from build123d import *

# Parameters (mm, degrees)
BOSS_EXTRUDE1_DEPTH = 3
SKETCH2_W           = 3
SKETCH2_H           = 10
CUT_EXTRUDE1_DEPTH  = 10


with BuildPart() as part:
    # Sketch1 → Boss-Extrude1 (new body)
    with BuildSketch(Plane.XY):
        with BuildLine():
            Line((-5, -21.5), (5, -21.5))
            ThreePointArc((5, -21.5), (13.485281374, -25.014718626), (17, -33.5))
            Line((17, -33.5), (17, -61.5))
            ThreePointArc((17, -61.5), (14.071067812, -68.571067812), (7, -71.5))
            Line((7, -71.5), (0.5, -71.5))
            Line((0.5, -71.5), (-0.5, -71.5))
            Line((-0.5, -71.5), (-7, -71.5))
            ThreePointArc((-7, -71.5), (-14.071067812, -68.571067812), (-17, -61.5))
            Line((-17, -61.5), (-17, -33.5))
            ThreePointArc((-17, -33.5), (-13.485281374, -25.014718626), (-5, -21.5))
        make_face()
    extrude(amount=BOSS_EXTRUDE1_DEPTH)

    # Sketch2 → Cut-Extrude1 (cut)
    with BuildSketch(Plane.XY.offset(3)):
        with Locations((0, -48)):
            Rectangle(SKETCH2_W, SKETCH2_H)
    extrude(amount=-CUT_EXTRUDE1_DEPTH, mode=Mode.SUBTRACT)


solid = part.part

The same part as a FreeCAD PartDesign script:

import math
import FreeCAD as App
import Part
import Sketcher
Q = App.Units.Quantity

doc = App.newDocument("Part")
params = doc.addObject("Spreadsheet::Sheet", "Params")
for row, (alias, value) in enumerate([
    ("sketch1_radius", "12 mm"),
    ("sketch1_radius2", "10 mm"),
    ("sketch1_width", "10 mm"),
    ("sketch1_height", "28 mm"),
    ("pad1_length", "3 mm"),
    ("sketch2_width", "3 mm"),
    ("sketch2_height", "10 mm"),
    ("pocket1_length", "10 mm"),
], start=1):
    params.set(f"A{row}", alias)
    params.set(f"B{row}", "=" + value)
    params.setAlias(f"B{row}", alias)

body = doc.addObject("PartDesign::Body", "Body")

sketch1 = body.newObject("Sketcher::SketchObject", "Sketch")
sketch1.AttachmentSupport = (doc.getObject("XY_Plane"), [""])
sketch1.MapMode = "FlatFace"
sketch1.addGeometry([
    Part.LineSegment(App.Vector(5, -22, 0), App.Vector(-5, -22, 0)),
    Part.ArcOfCircle(Part.Circle(App.Vector(-5, -34, 0), App.Vector(0, 0, 1), 12), math.radians(90), math.radians(180)),
    Part.LineSegment(App.Vector(-17, -34, 0), App.Vector(-17, -62, 0)),
    Part.ArcOfCircle(Part.Circle(App.Vector(-7, -62, 0), App.Vector(0, 0, 1), 10), math.radians(180), math.radians(270)),
    Part.LineSegment(App.Vector(-7, -72, 0), App.Vector(7, -72, 0)),
    Part.ArcOfCircle(Part.Circle(App.Vector(7, -62, 0), App.Vector(0, 0, 1), 10), math.radians(-90), math.radians(0)),
    Part.LineSegment(App.Vector(17, -62, 0), App.Vector(17, -34, 0)),
    Part.ArcOfCircle(Part.Circle(App.Vector(5, -34, 0), App.Vector(0, 0, 1), 12), math.radians(0), math.radians(90)),
], False)
sketch1.addConstraint([
    Sketcher.Constraint("Tangent", 0, 2, 1, 1),
    Sketcher.Constraint("Tangent", 1, 2, 2, 1),
    Sketcher.Constraint("Tangent", 2, 2, 3, 1),
    Sketcher.Constraint("Tangent", 3, 2, 4, 1),
    Sketcher.Constraint("Tangent", 4, 2, 5, 1),
    Sketcher.Constraint("Tangent", 5, 2, 6, 1),
    Sketcher.Constraint("Tangent", 6, 2, 7, 1),
    Sketcher.Constraint("Tangent", 7, 2, 0, 1),
    Sketcher.Constraint("Horizontal", 0),
    Sketcher.Constraint("Vertical", 2),
    Sketcher.Constraint("Horizontal", 4),
    Sketcher.Constraint("Vertical", 6),
    Sketcher.Constraint("Equal", 3, 5),
    Sketcher.Constraint("Equal", 1, 7),
    Sketcher.Constraint("Radius", 1, Q("12 mm")),
    Sketcher.Constraint("Radius", 3, Q("10 mm")),
    Sketcher.Constraint("DistanceX", 0, 2, 0, 1, Q("10 mm")),
    Sketcher.Constraint("DistanceY", 2, 2, 2, 1, Q("28 mm")),
    Sketcher.Constraint("DistanceX", 1, 3, -1, 1, Q("5 mm")),
    Sketcher.Constraint("DistanceY", 1, 3, -1, 1, Q("33.5 mm")),
])
sketch1.setExpression("Constraints[14]", "Params.sketch1_radius")
sketch1.setExpression("Constraints[15]", "Params.sketch1_radius2")
sketch1.setExpression("Constraints[16]", "Params.sketch1_width")
sketch1.setExpression("Constraints[17]", "Params.sketch1_height")
pad1 = body.newObject("PartDesign::Pad", "Pad")
pad1.Profile = sketch1
pad1.setExpression("Length", "Params.pad1_length")

sketch2 = body.newObject("Sketcher::SketchObject", "Sketch001")
sketch2.AttachmentSupport = (doc.getObject("XY_Plane"), [""])
sketch2.MapMode = "FlatFace"
sketch2.AttachmentOffset = App.Placement(App.Vector(0, 0, 3), App.Rotation())
sketch2.addGeometry([
    Part.LineSegment(App.Vector(-1.5, -43, 0), App.Vector(-1.5, -53, 0)),
    Part.LineSegment(App.Vector(-1.5, -53, 0), App.Vector(1.5, -53, 0)),
    Part.LineSegment(App.Vector(1.5, -53, 0), App.Vector(1.5, -43, 0)),
    Part.LineSegment(App.Vector(1.5, -43, 0), App.Vector(-1.5, -43, 0)),
], False)
sketch2.addConstraint([
    Sketcher.Constraint("Coincident", 0, 2, 1, 1),
    Sketcher.Constraint("Coincident", 1, 2, 2, 1),
    Sketcher.Constraint("Coincident", 2, 2, 3, 1),
    Sketcher.Constraint("Coincident", 3, 2, 0, 1),
    Sketcher.Constraint("Vertical", 0),
    Sketcher.Constraint("Horizontal", 1),
    Sketcher.Constraint("Vertical", 2),
    Sketcher.Constraint("Horizontal", 3),
    Sketcher.Constraint("DistanceX", 1, 1, 1, 2, Q("3 mm")),
    Sketcher.Constraint("DistanceY", 0, 2, 0, 1, Q("10 mm")),
    Sketcher.Constraint("DistanceY", 0, 2, -1, 1, Q("53 mm")),
    Sketcher.Constraint("DistanceX", 0, 2, -1, 1, Q("1.5 mm")),
])
sketch2.setExpression("Constraints[8]", "Params.sketch2_width")
sketch2.setExpression("Constraints[9]", "Params.sketch2_height")
pocket1 = body.newObject("PartDesign::Pocket", "Pocket")
pocket1.Profile = sketch2
pocket1.setExpression("Length", "Params.pocket1_length")

doc.recompute()
